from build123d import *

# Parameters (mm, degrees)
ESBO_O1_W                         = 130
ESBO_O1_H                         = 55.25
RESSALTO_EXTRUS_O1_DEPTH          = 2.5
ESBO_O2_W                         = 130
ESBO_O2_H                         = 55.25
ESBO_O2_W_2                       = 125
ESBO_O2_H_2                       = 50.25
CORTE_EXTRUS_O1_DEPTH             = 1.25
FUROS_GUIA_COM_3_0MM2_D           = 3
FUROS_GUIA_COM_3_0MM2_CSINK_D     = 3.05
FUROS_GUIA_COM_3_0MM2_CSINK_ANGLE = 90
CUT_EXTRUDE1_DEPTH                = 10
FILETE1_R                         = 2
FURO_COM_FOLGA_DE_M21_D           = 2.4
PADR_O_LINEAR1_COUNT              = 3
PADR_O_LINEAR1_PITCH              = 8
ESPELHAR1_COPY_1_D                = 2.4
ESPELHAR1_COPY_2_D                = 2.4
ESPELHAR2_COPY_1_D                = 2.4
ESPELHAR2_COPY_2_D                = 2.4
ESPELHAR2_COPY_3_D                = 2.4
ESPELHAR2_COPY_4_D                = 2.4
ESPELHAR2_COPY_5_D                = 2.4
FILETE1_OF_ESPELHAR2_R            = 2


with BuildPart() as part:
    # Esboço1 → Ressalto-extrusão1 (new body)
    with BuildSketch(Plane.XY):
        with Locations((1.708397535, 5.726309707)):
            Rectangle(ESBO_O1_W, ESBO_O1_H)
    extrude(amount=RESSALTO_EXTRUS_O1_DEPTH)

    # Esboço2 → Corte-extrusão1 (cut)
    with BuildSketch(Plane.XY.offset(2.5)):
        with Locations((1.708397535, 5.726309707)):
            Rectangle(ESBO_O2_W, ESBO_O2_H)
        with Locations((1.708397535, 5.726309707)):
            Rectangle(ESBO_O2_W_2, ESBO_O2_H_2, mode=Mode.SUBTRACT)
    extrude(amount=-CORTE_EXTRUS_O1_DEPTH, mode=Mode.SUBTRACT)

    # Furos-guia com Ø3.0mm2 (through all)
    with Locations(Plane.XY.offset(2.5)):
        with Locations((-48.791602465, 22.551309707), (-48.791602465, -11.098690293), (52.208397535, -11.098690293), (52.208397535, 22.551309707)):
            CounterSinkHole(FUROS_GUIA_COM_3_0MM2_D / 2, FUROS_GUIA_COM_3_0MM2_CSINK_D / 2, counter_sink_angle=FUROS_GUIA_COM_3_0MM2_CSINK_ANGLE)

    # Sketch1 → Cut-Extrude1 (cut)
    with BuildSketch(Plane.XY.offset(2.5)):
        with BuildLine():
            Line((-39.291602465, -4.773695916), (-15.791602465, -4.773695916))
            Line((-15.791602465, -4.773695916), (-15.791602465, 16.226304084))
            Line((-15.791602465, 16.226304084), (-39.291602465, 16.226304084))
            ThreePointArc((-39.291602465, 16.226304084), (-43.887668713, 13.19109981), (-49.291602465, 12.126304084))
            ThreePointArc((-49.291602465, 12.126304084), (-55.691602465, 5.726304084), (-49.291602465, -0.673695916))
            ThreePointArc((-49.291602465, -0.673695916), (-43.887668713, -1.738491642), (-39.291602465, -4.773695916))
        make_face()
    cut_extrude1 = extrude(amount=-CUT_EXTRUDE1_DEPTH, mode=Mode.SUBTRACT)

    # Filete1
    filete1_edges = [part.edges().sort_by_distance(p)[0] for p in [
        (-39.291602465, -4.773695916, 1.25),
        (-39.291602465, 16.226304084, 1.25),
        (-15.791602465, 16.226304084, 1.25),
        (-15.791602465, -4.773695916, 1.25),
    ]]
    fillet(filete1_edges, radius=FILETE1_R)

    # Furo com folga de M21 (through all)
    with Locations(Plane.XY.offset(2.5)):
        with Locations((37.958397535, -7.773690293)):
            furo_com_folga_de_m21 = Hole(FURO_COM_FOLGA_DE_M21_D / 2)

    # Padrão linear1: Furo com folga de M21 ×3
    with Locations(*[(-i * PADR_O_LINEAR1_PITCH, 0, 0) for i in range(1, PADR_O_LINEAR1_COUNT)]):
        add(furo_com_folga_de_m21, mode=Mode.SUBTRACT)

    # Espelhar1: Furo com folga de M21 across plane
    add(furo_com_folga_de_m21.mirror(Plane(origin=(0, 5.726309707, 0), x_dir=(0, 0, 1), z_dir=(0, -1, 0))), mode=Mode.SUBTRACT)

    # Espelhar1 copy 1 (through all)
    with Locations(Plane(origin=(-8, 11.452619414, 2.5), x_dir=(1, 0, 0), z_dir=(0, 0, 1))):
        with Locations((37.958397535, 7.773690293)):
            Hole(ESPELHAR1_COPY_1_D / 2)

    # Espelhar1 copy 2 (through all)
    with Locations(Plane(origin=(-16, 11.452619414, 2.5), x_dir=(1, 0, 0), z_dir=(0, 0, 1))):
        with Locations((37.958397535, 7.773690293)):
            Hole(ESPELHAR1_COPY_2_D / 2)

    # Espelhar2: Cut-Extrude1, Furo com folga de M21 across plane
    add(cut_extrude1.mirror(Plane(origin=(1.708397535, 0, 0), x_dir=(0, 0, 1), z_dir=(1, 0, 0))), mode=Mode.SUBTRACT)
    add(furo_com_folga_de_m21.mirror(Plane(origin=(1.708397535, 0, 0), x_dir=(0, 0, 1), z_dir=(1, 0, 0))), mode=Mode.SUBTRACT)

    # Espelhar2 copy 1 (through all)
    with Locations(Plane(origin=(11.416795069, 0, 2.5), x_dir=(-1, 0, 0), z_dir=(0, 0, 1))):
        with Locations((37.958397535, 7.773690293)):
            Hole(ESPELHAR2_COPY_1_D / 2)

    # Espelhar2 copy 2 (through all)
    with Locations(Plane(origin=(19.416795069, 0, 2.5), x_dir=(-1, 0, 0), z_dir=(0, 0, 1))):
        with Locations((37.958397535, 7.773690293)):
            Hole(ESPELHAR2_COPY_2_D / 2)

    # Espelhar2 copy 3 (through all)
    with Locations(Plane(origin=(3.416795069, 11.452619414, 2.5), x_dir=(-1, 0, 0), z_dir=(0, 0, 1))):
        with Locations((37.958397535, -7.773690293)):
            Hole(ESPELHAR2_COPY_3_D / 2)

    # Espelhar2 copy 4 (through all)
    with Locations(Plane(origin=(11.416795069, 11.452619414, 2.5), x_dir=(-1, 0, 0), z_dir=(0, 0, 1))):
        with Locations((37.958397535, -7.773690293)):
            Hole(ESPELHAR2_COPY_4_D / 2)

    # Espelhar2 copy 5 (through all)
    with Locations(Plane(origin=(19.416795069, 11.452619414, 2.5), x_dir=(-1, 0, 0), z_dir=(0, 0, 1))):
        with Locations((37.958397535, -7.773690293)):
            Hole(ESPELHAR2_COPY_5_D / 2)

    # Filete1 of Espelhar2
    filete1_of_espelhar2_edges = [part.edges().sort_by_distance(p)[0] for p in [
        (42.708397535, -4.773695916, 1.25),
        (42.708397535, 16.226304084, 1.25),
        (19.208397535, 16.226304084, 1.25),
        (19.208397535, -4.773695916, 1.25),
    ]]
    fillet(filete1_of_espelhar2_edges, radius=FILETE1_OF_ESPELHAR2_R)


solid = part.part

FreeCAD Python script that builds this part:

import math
import FreeCAD as App
import Part
import Sketcher


def edges_at(feature, points):
    """Names of the edges that pass closest to the given points."""
    edges = feature.Shape.Edges
    near = lambda p: min(range(len(edges)), key=lambda i: edges[i].distToShape(Part.Vertex(*p))[0])
    return sorted({f"Edge{near(p) + 1}" for p in points})

doc = App.newDocument("Part")
body = doc.addObject("PartDesign::Body", "Body")

# Sketch on XY plane
sketch1 = body.newObject("Sketcher::SketchObject", "Sketch")
sketch1.AttachmentSupport = (doc.getObject("XY_Plane"), [""])
sketch1.MapMode = "FlatFace"
sketch1.addGeometry([
    Part.LineSegment(App.Vector(-63, 33, 0), App.Vector(-63, -22, 0)),
    Part.LineSegment(App.Vector(-63, -22, 0), App.Vector(67, -22, 0)),
    Part.LineSegment(App.Vector(67, -22, 0), App.Vector(67, 33, 0)),
    Part.LineSegment(App.Vector(67, 33, 0), App.Vector(-63, 33, 0)),
], False)
sketch1.addConstraint([
    Sketcher.Constraint("Coincident", 0, 2, 1, 1),
    Sketcher.Constraint("Coincident", 1, 2, 2, 1),
    Sketcher.Constraint("Coincident", 2, 2, 3, 1),
    Sketcher.Constraint("Coincident", 3, 2, 0, 1),
    Sketcher.Constraint("Vertical", 0),
    Sketcher.Constraint("Horizontal", 1),
    Sketcher.Constraint("Vertical", 2),
    Sketcher.Constraint("Horizontal", 3),
    Sketcher.Constraint("DistanceX", 1, 1, 1, 2, 130.0),
    Sketcher.Constraint("DistanceY", 0, 2, 0, 1, 55.25),
    Sketcher.Constraint("DistanceY", 0, 2, -1, 1, 21.89869),
    Sketcher.Constraint("DistanceX", 0, 2, -1, 1, 63.291602),
])
pad1 = body.newObject("PartDesign::Pad", "Pad")
pad1.Profile = sketch1
pad1.Length = 2.5

# Sketch on XY plane
sketch2 = body.newObject("Sketcher::SketchObject", "Sketch001")
sketch2.AttachmentSupport = (doc.getObject("XY_Plane"), [""])
sketch2.MapMode = "FlatFace"
sketch2.AttachmentOffset = App.Placement(App.Vector(0, 0, 2.5), App.Rotation())
sketch2.addGeometry([
    Part.LineSegment(App.Vector(-63, 33, 0), App.Vector(-63, -22, 0)),  # 0
    Part.LineSegment(App.Vector(-63, -22, 0), App.Vector(67, -22, 0)),  # 1
    Part.LineSegment(App.Vector(67, -22, 0), App.Vector(67, 33, 0)),  # 2
    Part.LineSegment(App.Vector(67, 33, 0), App.Vector(-63, 33, 0)),  # 3
    Part.LineSegment(App.Vector(64, -19, 0), App.Vector(-61, -19, 0)),  # 4
    Part.LineSegment(App.Vector(-61, -19, 0), App.Vector(-61, 31, 0)),  # 5
    Part.LineSegment(App.Vector(-61, 31, 0), App.Vector(64, 31, 0)),  # 6
    Part.LineSegment(App.Vector(64, 31, 0), App.Vector(64, -19, 0)),  # 7
], False)
sketch2.addConstraint([
    Sketcher.Constraint("Coincident", 0, 2, 1, 1),
    Sketcher.Constraint("Coincident", 1, 2, 2, 1),
    Sketcher.Constraint("Coincident", 2, 2, 3, 1),
    Sketcher.Constraint("Coincident", 3, 2, 0, 1),
    Sketcher.Constraint("Coincident", 4, 2, 5, 1),
    Sketcher.Constraint("Coincident", 5, 2, 6, 1),
    Sketcher.Constraint("Coincident", 6, 2, 7, 1),
    Sketcher.Constraint("Coincident", 7, 2, 4, 1),
    Sketcher.Constraint("Vertical", 0),
    Sketcher.Constraint("Horizontal", 1),
    Sketcher.Constraint("Vertical", 2),
    Sketcher.Constraint("Horizontal", 3),
    Sketcher.Constraint("Horizontal", 4),
    Sketcher.Constraint("Vertical", 5),
    Sketcher.Constraint("Horizontal", 6),
    Sketcher.Constraint("Vertical", 7),
    Sketcher.Constraint("DistanceX", 1, 1, 1, 2, 130.0),
    Sketcher.Constraint("DistanceX", 4, 2, 4, 1, 125.0),
    Sketcher.Constraint("DistanceY", 0, 2, 0, 1, 55.25),
    Sketcher.Constraint("DistanceY", 5, 1, 5, 2, 50.25),
    Sketcher.Constraint("DistanceX", 0, 2, 4, 2, 2.5),
    Sketcher.Constraint("DistanceY", 0, 2, 4, 2, 2.5),
    Sketcher.Constraint("DistanceY", 0, 2, -1, 1, 21.89869),
    Sketcher.Constraint("DistanceX", 0, 2, -1, 1, 63.291602),
])
pocket1 = body.newObject("PartDesign::Pocket", "Pocket")
pocket1.Profile = sketch2
pocket1.Length = 1.25

# Sketch on XY plane
sketch3 = body.newObject("Sketcher::SketchObject", "Sketch002")
sketch3.AttachmentSupport = (doc.getObject("XY_Plane"), [""])
sketch3.MapMode = "FlatFace"
sketch3.AttachmentOffset = App.Placement(App.Vector(0, 0, 2.5), App.Rotation())
sketch3.addGeometry([
    Part.Circle(App.Vector(-48.8, 22.6, 0), App.Vector(0, 0, 1), 1.5),
    Part.Circle(App.Vector(-48.8, -11.1, 0), App.Vector(0, 0, 1), 1.5),
    Part.Circle(App.Vector(52.2, -11.1, 0), App.Vector(0, 0, 1), 1.5),
    Part.Circle(App.Vector(52.2, 22.6, 0), App.Vector(0, 0, 1), 1.5),
], False)
sketch3.addConstraint([
    Sketcher.Constraint("Equal", 0, 1),
    Sketcher.Constraint("Equal", 1, 2),
    Sketcher.Constraint("Equal", 2, 3),
    Sketcher.Constraint("Horizontal", 1, 3, 2, 3),
    Sketcher.Constraint("Horizontal", 0, 3, 3, 3),
    Sketcher.Constraint("Vertical", 0, 3, 1, 3),
    Sketcher.Constraint("Vertical", 2, 3, 3, 3),
    Sketcher.Constraint("Diameter", 0, 3.0),
    Sketcher.Constraint("DistanceX", 1, 3, 2, 3, 101.0),
    Sketcher.Constraint("DistanceY", 1, 3, 0, 3, 33.65),
    Sketcher.Constraint("DistanceY", -1, 1, 0, 3, 22.55131),
    Sketcher.Constraint("DistanceX", 0, 3, -1, 1, 48.791602),
])
doc.recompute()
hole = body.newObject("PartDesign::Hole", "Hole")
hole.Profile = sketch3
hole.ThreadType = "None"
hole.Diameter = 3
hole.DepthType = "ThroughAll"
hole.HoleCutType = "Countersink"
hole.HoleCutDiameter = 3.05
hole.HoleCutCountersinkAngle = 90

# Sketch on XY plane
sketch4 = body.newObject("Sketcher::SketchObject", "Sketch003")
sketch4.AttachmentSupport = (doc.getObject("XY_Plane"), [""])
sketch4.MapMode = "FlatFace"
sketch4.AttachmentOffset = App.Placement(App.Vector(0, 0, 2.5), App.Rotation())
sketch4.addGeometry([
    Part.LineSegment(App.Vector(-39, -5, 0), App.Vector(-16, -5, 0)),  # 0
    Part.LineSegment(App.Vector(-16, -5, 0), App.Vector(-16, 16, 0)),  # 1
    Part.LineSegment(App.Vector(-16, 16, 0), App.Vector(-39, 16, 0)),  # 2
    Part.ArcOfCircle(Part.Circle(App.Vector(-49, 26, 0), App.Vector(0, 0, 1), 14), math.radians(-90), math.radians(-45)),  # 3
    Part.ArcOfCircle(Part.Circle(App.Vector(-49, 6, 0), App.Vector(0, 0, 1), 6), math.radians(90), math.radians(270)),  # 4
    Part.ArcOfCircle(Part.Circle(App.Vector(-49, -15, 0), App.Vector(0, 0, 1), 14), math.radians(45), math.radians(90)),  # 5
], False)
sketch4.addConstraint([
    Sketcher.Constraint("Coincident", 0, 2, 1, 1),
    Sketcher.Constraint("Coincident", 1, 2, 2, 1),
    Sketcher.Constraint("Coincident", 2, 2, 3, 2),
    Sketcher.Constraint("Tangent", 3, 1, 4, 1),
    Sketcher.Constraint("Tangent", 4, 2, 5, 2),
    Sketcher.Constraint("Coincident", 5, 1, 0, 1),
    Sketcher.Constraint("Horizontal", 0),
    Sketcher.Constraint("Vertical", 1),
    Sketcher.Constraint("Horizontal", 2),
    Sketcher.Constraint("Equal", 3, 5),
    Sketcher.Constraint("Vertical", 3, 3, 4, 3),
    Sketcher.Constraint("Vertical", 4, 3, 5, 3),
    Sketcher.Constraint("Vertical", 2, 2, 5, 1),
    Sketcher.Constraint("Radius", 4, 6.4),
    Sketcher.Constraint("DistanceY", 1, 1, 1, 2, 21.0),
    Sketcher.Constraint("DistanceX", 0, 1, 0, 2, 23.5),
    Sketcher.Constraint("DistanceX", 3, 3, 2, 2, 10.0),
    Sketcher.Constraint("DistanceX", 3, 3, -1, 1, 49.291602),
    Sketcher.Constraint("DistanceY", -1, 1, 3, 3, 26.371426),
])
pocket2 = body.newObject("PartDesign::Pocket", "Pocket001")
pocket2.Profile = sketch4
pocket2.Length = 10
doc.recompute()

fillet = body.newObject("PartDesign::Fillet", "Fillet")
fillet.Base = (pocket2, edges_at(pocket2, [
    (-39.292, -4.774, 1.25),
    (-39.292, 16.226, 1.25),
    (-15.792, 16.226, 1.25),
    (-15.792, -4.774, 1.25),
]))
fillet.Radius = 2

# Sketch on XY plane
sketch5 = body.newObject("Sketcher::SketchObject", "Sketch004")
sketch5.AttachmentSupport = (doc.getObject("XY_Plane"), [""])
sketch5.MapMode = "FlatFace"
sketch5.AttachmentOffset = App.Placement(App.Vector(0, 0, 2.5), App.Rotation())
sketch5.addGeometry(Part.Circle(App.Vector(38, -7.8, 0), App.Vector(0, 0, 1), 1.2), False)
sketch5.addConstraint([
    Sketcher.Constraint("Diameter", 0, 2.4),
    Sketcher.Constraint("DistanceY", 0, 3, -1, 1, 7.77369),
    Sketcher.Constraint("DistanceX", -1, 1, 0, 3, 37.958398),
])
doc.recompute()
hole2 = body.newObject("PartDesign::Hole", "Hole001")
hole2.Profile = sketch5
hole2.ThreadType = "None"
hole2.Diameter = 2.4
hole2.DepthType = "ThroughAll"
doc.recompute()

linearpattern = body.newObject("PartDesign::LinearPattern", "LinearPattern")
linearpattern.Originals = [hole2]
linearpattern.Direction = (doc.getObject("X_Axis"), [""])
linearpattern.Mode = "offset"
linearpattern.Offset = 8
linearpattern.Occurrences = 3
linearpattern.Reversed = True
body.Tip = linearpattern
doc.recompute()

datumplane = body.newObject("PartDesign::Plane", "DatumPlane")
datumplane.AttachmentSupport = (doc.getObject("XZ_Plane"), [""])
datumplane.MapMode = "FlatFace"
datumplane.AttachmentOffset = App.Placement(App.Vector(0, 0, -5.72631), App.Rotation())
mirrored = body.newObject("PartDesign::Mirrored", "Mirrored")
mirrored.Originals = [hole2]
mirrored.MirrorPlane = (datumplane, [""])
body.Tip = mirrored

# Sketch on XY plane
sketch6 = body.newObject("Sketcher::SketchObject", "Sketch005")
sketch6.AttachmentSupport = (doc.getObject("XY_Plane"), [""])
sketch6.MapMode = "FlatFace"
sketch6.AttachmentOffset = App.Placement(App.Vector(0, 0, 2.5), App.Rotation())
sketch6.addGeometry(Part.Circle(App.Vector(30, 19.2, 0), App.Vector(0, 0, 1), 1.2), False)
sketch6.addConstraint([
    Sketcher.Constraint("Diameter", 0, 2.4),
    Sketcher.Constraint("DistanceY", -1, 1, 0, 3, 19.22631),
    Sketcher.Constraint("DistanceX", -1, 1, 0, 3, 29.958398),
])
doc.recompute()
hole3 = body.newObject("PartDesign::Hole", "Hole002")
hole3.Profile = sketch6
hole3.ThreadType = "None"
hole3.Diameter = 2.4
hole3.DepthType = "ThroughAll"

# Sketch on XY plane
sketch7 = body.newObject("Sketcher::SketchObject", "Sketch006")
sketch7.AttachmentSupport = (doc.getObject("XY_Plane"), [""])
sketch7.MapMode = "FlatFace"
sketch7.AttachmentOffset = App.Placement(App.Vector(0, 0, 2.5), App.Rotation())
sketch7.addGeometry(Part.Circle(App.Vector(22, 19.2, 0), App.Vector(0, 0, 1), 1.2), False)
sketch7.addConstraint([
    Sketcher.Constraint("Diameter", 0, 2.4),
    Sketcher.Constraint("DistanceY", -1, 1, 0, 3, 19.22631),
    Sketcher.Constraint("DistanceX", -1, 1, 0, 3, 21.958398),
])
doc.recompute()
hole4 = body.newObject("PartDesign::Hole", "Hole003")
hole4.Profile = sketch7
hole4.ThreadType = "None"
hole4.Diameter = 2.4
hole4.DepthType = "ThroughAll"
doc.recompute()

datumplane2 = body.newObject("PartDesign::Plane", "DatumPlane001")
datumplane2.AttachmentSupport = (doc.getObject("YZ_Plane"), [""])
datumplane2.MapMode = "FlatFace"
datumplane2.AttachmentOffset = App.Placement(App.Vector(0, 0, 1.708398), App.Rotation())
mirrored2 = body.newObject("PartDesign::Mirrored", "Mirrored001")
mirrored2.Originals = [pocket2, hole2]
mirrored2.MirrorPlane = (datumplane2, [""])
body.Tip = mirrored2

# Sketch on XY plane
sketch8 = body.newObject("Sketcher::SketchObject", "Sketch007")
sketch8.AttachmentSupport = (doc.getObject("XY_Plane"), [""])
sketch8.MapMode = "FlatFace"
sketch8.AttachmentOffset = App.Placement(App.Vector(0, 0, 2.5), App.Rotation())
sketch8.addGeometry(Part.Circle(App.Vector(-26.5, -7.8, 0), App.Vector(0, 0, 1), 1.2), False)
sketch8.addConstraint([
    Sketcher.Constraint("Diameter", 0, 2.4),
    Sketcher.Constraint("DistanceY", 0, 3, -1, 1, 7.77369),
    Sketcher.Constraint("DistanceX", 0, 3, -1, 1, 26.541602),
])
doc.recompute()
hole5 = body.newObject("PartDesign::Hole", "Hole004")
hole5.Profile = sketch8
hole5.ThreadType = "None"
hole5.Diameter = 2.4
hole5.DepthType = "ThroughAll"

# Sketch on XY plane
sketch9 = body.newObject("Sketcher::SketchObject", "Sketch008")
sketch9.AttachmentSupport = (doc.getObject("XY_Plane"), [""])
sketch9.MapMode = "FlatFace"
sketch9.AttachmentOffset = App.Placement(App.Vector(0, 0, 2.5), App.Rotation())
sketch9.addGeometry(Part.Circle(App.Vector(-18.5, -7.8, 0), App.Vector(0, 0, 1), 1.2), False)
sketch9.addConstraint([
    Sketcher.Constraint("Diameter", 0, 2.4),
    Sketcher.Constraint("DistanceY", 0, 3, -1, 1, 7.77369),
    Sketcher.Constraint("DistanceX", 0, 3, -1, 1, 18.541602),
])
doc.recompute()
hole6 = body.newObject("PartDesign::Hole", "Hole005")
hole6.Profile = sketch9
hole6.ThreadType = "None"
hole6.Diameter = 2.4
hole6.DepthType = "ThroughAll"

# Sketch on XY plane
sketch10 = body.newObject("Sketcher::SketchObject", "Sketch009")
sketch10.AttachmentSupport = (doc.getObject("XY_Plane"), [""])
sketch10.MapMode = "FlatFace"
sketch10.AttachmentOffset = App.Placement(App.Vector(0, 0, 2.5), App.Rotation())
sketch10.addGeometry(Part.Circle(App.Vector(-34.5, 19.2, 0), App.Vector(0, 0, 1), 1.2), False)
sketch10.addConstraint([
    Sketcher.Constraint("Diameter", 0, 2.4),
    Sketcher.Constraint("DistanceY", -1, 1, 0, 3, 19.22631),
    Sketcher.Constraint("DistanceX", 0, 3, -1, 1, 34.541602),
])
doc.recompute()
hole7 = body.newObject("PartDesign::Hole", "Hole006")
hole7.Profile = sketch10
hole7.ThreadType = "None"
hole7.Diameter = 2.4
hole7.DepthType = "ThroughAll"

# Sketch on XY plane
sketch11 = body.newObject("Sketcher::SketchObject", "Sketch010")
sketch11.AttachmentSupport = (doc.getObject("XY_Plane"), [""])
sketch11.MapMode = "FlatFace"
sketch11.AttachmentOffset = App.Placement(App.Vector(0, 0, 2.5), App.Rotation())
sketch11.addGeometry(Part.Circle(App.Vector(-26.5, 19.2, 0), App.Vector(0, 0, 1), 1.2), False)
sketch11.addConstraint([
    Sketcher.Constraint("Diameter", 0, 2.4),
    Sketcher.Constraint("DistanceY", -1, 1, 0, 3, 19.22631),
    Sketcher.Constraint("DistanceX", 0, 3, -1, 1, 26.541602),
])
doc.recompute()
hole8 = body.newObject("PartDesign::Hole", "Hole007")
hole8.Profile = sketch11
hole8.ThreadType = "None"
hole8.Diameter = 2.4
hole8.DepthType = "ThroughAll"

# Sketch on XY plane
sketch12 = body.newObject("Sketcher::SketchObject", "Sketch011")
sketch12.AttachmentSupport = (doc.getObject("XY_Plane"), [""])
sketch12.MapMode = "FlatFace"
sketch12.AttachmentOffset = App.Placement(App.Vector(0, 0, 2.5), App.Rotation())
sketch12.addGeometry(Part.Circle(App.Vector(-18.5, 19.2, 0), App.Vector(0, 0, 1), 1.2), False)
sketch12.addConstraint([
    Sketcher.Constraint("Diameter", 0, 2.4),
    Sketcher.Constraint("DistanceY", -1, 1, 0, 3, 19.22631),
    Sketcher.Constraint("DistanceX", 0, 3, -1, 1, 18.541602),
])
doc.recompute()
hole9 = body.newObject("PartDesign::Hole", "Hole008")
hole9.Profile = sketch12
hole9.ThreadType = "None"
hole9.Diameter = 2.4
hole9.DepthType = "ThroughAll"
doc.recompute()

fillet2 = body.newObject("PartDesign::Fillet", "Fillet001")
fillet2.Base = (hole9, edges_at(hole9, [
    (42.708, -4.774, 1.25),
    (42.708, 16.226, 1.25),
    (19.208, 16.226, 1.25),
    (19.208, -4.774, 1.25),
]))
fillet2.Radius = 2

doc.recompute()
